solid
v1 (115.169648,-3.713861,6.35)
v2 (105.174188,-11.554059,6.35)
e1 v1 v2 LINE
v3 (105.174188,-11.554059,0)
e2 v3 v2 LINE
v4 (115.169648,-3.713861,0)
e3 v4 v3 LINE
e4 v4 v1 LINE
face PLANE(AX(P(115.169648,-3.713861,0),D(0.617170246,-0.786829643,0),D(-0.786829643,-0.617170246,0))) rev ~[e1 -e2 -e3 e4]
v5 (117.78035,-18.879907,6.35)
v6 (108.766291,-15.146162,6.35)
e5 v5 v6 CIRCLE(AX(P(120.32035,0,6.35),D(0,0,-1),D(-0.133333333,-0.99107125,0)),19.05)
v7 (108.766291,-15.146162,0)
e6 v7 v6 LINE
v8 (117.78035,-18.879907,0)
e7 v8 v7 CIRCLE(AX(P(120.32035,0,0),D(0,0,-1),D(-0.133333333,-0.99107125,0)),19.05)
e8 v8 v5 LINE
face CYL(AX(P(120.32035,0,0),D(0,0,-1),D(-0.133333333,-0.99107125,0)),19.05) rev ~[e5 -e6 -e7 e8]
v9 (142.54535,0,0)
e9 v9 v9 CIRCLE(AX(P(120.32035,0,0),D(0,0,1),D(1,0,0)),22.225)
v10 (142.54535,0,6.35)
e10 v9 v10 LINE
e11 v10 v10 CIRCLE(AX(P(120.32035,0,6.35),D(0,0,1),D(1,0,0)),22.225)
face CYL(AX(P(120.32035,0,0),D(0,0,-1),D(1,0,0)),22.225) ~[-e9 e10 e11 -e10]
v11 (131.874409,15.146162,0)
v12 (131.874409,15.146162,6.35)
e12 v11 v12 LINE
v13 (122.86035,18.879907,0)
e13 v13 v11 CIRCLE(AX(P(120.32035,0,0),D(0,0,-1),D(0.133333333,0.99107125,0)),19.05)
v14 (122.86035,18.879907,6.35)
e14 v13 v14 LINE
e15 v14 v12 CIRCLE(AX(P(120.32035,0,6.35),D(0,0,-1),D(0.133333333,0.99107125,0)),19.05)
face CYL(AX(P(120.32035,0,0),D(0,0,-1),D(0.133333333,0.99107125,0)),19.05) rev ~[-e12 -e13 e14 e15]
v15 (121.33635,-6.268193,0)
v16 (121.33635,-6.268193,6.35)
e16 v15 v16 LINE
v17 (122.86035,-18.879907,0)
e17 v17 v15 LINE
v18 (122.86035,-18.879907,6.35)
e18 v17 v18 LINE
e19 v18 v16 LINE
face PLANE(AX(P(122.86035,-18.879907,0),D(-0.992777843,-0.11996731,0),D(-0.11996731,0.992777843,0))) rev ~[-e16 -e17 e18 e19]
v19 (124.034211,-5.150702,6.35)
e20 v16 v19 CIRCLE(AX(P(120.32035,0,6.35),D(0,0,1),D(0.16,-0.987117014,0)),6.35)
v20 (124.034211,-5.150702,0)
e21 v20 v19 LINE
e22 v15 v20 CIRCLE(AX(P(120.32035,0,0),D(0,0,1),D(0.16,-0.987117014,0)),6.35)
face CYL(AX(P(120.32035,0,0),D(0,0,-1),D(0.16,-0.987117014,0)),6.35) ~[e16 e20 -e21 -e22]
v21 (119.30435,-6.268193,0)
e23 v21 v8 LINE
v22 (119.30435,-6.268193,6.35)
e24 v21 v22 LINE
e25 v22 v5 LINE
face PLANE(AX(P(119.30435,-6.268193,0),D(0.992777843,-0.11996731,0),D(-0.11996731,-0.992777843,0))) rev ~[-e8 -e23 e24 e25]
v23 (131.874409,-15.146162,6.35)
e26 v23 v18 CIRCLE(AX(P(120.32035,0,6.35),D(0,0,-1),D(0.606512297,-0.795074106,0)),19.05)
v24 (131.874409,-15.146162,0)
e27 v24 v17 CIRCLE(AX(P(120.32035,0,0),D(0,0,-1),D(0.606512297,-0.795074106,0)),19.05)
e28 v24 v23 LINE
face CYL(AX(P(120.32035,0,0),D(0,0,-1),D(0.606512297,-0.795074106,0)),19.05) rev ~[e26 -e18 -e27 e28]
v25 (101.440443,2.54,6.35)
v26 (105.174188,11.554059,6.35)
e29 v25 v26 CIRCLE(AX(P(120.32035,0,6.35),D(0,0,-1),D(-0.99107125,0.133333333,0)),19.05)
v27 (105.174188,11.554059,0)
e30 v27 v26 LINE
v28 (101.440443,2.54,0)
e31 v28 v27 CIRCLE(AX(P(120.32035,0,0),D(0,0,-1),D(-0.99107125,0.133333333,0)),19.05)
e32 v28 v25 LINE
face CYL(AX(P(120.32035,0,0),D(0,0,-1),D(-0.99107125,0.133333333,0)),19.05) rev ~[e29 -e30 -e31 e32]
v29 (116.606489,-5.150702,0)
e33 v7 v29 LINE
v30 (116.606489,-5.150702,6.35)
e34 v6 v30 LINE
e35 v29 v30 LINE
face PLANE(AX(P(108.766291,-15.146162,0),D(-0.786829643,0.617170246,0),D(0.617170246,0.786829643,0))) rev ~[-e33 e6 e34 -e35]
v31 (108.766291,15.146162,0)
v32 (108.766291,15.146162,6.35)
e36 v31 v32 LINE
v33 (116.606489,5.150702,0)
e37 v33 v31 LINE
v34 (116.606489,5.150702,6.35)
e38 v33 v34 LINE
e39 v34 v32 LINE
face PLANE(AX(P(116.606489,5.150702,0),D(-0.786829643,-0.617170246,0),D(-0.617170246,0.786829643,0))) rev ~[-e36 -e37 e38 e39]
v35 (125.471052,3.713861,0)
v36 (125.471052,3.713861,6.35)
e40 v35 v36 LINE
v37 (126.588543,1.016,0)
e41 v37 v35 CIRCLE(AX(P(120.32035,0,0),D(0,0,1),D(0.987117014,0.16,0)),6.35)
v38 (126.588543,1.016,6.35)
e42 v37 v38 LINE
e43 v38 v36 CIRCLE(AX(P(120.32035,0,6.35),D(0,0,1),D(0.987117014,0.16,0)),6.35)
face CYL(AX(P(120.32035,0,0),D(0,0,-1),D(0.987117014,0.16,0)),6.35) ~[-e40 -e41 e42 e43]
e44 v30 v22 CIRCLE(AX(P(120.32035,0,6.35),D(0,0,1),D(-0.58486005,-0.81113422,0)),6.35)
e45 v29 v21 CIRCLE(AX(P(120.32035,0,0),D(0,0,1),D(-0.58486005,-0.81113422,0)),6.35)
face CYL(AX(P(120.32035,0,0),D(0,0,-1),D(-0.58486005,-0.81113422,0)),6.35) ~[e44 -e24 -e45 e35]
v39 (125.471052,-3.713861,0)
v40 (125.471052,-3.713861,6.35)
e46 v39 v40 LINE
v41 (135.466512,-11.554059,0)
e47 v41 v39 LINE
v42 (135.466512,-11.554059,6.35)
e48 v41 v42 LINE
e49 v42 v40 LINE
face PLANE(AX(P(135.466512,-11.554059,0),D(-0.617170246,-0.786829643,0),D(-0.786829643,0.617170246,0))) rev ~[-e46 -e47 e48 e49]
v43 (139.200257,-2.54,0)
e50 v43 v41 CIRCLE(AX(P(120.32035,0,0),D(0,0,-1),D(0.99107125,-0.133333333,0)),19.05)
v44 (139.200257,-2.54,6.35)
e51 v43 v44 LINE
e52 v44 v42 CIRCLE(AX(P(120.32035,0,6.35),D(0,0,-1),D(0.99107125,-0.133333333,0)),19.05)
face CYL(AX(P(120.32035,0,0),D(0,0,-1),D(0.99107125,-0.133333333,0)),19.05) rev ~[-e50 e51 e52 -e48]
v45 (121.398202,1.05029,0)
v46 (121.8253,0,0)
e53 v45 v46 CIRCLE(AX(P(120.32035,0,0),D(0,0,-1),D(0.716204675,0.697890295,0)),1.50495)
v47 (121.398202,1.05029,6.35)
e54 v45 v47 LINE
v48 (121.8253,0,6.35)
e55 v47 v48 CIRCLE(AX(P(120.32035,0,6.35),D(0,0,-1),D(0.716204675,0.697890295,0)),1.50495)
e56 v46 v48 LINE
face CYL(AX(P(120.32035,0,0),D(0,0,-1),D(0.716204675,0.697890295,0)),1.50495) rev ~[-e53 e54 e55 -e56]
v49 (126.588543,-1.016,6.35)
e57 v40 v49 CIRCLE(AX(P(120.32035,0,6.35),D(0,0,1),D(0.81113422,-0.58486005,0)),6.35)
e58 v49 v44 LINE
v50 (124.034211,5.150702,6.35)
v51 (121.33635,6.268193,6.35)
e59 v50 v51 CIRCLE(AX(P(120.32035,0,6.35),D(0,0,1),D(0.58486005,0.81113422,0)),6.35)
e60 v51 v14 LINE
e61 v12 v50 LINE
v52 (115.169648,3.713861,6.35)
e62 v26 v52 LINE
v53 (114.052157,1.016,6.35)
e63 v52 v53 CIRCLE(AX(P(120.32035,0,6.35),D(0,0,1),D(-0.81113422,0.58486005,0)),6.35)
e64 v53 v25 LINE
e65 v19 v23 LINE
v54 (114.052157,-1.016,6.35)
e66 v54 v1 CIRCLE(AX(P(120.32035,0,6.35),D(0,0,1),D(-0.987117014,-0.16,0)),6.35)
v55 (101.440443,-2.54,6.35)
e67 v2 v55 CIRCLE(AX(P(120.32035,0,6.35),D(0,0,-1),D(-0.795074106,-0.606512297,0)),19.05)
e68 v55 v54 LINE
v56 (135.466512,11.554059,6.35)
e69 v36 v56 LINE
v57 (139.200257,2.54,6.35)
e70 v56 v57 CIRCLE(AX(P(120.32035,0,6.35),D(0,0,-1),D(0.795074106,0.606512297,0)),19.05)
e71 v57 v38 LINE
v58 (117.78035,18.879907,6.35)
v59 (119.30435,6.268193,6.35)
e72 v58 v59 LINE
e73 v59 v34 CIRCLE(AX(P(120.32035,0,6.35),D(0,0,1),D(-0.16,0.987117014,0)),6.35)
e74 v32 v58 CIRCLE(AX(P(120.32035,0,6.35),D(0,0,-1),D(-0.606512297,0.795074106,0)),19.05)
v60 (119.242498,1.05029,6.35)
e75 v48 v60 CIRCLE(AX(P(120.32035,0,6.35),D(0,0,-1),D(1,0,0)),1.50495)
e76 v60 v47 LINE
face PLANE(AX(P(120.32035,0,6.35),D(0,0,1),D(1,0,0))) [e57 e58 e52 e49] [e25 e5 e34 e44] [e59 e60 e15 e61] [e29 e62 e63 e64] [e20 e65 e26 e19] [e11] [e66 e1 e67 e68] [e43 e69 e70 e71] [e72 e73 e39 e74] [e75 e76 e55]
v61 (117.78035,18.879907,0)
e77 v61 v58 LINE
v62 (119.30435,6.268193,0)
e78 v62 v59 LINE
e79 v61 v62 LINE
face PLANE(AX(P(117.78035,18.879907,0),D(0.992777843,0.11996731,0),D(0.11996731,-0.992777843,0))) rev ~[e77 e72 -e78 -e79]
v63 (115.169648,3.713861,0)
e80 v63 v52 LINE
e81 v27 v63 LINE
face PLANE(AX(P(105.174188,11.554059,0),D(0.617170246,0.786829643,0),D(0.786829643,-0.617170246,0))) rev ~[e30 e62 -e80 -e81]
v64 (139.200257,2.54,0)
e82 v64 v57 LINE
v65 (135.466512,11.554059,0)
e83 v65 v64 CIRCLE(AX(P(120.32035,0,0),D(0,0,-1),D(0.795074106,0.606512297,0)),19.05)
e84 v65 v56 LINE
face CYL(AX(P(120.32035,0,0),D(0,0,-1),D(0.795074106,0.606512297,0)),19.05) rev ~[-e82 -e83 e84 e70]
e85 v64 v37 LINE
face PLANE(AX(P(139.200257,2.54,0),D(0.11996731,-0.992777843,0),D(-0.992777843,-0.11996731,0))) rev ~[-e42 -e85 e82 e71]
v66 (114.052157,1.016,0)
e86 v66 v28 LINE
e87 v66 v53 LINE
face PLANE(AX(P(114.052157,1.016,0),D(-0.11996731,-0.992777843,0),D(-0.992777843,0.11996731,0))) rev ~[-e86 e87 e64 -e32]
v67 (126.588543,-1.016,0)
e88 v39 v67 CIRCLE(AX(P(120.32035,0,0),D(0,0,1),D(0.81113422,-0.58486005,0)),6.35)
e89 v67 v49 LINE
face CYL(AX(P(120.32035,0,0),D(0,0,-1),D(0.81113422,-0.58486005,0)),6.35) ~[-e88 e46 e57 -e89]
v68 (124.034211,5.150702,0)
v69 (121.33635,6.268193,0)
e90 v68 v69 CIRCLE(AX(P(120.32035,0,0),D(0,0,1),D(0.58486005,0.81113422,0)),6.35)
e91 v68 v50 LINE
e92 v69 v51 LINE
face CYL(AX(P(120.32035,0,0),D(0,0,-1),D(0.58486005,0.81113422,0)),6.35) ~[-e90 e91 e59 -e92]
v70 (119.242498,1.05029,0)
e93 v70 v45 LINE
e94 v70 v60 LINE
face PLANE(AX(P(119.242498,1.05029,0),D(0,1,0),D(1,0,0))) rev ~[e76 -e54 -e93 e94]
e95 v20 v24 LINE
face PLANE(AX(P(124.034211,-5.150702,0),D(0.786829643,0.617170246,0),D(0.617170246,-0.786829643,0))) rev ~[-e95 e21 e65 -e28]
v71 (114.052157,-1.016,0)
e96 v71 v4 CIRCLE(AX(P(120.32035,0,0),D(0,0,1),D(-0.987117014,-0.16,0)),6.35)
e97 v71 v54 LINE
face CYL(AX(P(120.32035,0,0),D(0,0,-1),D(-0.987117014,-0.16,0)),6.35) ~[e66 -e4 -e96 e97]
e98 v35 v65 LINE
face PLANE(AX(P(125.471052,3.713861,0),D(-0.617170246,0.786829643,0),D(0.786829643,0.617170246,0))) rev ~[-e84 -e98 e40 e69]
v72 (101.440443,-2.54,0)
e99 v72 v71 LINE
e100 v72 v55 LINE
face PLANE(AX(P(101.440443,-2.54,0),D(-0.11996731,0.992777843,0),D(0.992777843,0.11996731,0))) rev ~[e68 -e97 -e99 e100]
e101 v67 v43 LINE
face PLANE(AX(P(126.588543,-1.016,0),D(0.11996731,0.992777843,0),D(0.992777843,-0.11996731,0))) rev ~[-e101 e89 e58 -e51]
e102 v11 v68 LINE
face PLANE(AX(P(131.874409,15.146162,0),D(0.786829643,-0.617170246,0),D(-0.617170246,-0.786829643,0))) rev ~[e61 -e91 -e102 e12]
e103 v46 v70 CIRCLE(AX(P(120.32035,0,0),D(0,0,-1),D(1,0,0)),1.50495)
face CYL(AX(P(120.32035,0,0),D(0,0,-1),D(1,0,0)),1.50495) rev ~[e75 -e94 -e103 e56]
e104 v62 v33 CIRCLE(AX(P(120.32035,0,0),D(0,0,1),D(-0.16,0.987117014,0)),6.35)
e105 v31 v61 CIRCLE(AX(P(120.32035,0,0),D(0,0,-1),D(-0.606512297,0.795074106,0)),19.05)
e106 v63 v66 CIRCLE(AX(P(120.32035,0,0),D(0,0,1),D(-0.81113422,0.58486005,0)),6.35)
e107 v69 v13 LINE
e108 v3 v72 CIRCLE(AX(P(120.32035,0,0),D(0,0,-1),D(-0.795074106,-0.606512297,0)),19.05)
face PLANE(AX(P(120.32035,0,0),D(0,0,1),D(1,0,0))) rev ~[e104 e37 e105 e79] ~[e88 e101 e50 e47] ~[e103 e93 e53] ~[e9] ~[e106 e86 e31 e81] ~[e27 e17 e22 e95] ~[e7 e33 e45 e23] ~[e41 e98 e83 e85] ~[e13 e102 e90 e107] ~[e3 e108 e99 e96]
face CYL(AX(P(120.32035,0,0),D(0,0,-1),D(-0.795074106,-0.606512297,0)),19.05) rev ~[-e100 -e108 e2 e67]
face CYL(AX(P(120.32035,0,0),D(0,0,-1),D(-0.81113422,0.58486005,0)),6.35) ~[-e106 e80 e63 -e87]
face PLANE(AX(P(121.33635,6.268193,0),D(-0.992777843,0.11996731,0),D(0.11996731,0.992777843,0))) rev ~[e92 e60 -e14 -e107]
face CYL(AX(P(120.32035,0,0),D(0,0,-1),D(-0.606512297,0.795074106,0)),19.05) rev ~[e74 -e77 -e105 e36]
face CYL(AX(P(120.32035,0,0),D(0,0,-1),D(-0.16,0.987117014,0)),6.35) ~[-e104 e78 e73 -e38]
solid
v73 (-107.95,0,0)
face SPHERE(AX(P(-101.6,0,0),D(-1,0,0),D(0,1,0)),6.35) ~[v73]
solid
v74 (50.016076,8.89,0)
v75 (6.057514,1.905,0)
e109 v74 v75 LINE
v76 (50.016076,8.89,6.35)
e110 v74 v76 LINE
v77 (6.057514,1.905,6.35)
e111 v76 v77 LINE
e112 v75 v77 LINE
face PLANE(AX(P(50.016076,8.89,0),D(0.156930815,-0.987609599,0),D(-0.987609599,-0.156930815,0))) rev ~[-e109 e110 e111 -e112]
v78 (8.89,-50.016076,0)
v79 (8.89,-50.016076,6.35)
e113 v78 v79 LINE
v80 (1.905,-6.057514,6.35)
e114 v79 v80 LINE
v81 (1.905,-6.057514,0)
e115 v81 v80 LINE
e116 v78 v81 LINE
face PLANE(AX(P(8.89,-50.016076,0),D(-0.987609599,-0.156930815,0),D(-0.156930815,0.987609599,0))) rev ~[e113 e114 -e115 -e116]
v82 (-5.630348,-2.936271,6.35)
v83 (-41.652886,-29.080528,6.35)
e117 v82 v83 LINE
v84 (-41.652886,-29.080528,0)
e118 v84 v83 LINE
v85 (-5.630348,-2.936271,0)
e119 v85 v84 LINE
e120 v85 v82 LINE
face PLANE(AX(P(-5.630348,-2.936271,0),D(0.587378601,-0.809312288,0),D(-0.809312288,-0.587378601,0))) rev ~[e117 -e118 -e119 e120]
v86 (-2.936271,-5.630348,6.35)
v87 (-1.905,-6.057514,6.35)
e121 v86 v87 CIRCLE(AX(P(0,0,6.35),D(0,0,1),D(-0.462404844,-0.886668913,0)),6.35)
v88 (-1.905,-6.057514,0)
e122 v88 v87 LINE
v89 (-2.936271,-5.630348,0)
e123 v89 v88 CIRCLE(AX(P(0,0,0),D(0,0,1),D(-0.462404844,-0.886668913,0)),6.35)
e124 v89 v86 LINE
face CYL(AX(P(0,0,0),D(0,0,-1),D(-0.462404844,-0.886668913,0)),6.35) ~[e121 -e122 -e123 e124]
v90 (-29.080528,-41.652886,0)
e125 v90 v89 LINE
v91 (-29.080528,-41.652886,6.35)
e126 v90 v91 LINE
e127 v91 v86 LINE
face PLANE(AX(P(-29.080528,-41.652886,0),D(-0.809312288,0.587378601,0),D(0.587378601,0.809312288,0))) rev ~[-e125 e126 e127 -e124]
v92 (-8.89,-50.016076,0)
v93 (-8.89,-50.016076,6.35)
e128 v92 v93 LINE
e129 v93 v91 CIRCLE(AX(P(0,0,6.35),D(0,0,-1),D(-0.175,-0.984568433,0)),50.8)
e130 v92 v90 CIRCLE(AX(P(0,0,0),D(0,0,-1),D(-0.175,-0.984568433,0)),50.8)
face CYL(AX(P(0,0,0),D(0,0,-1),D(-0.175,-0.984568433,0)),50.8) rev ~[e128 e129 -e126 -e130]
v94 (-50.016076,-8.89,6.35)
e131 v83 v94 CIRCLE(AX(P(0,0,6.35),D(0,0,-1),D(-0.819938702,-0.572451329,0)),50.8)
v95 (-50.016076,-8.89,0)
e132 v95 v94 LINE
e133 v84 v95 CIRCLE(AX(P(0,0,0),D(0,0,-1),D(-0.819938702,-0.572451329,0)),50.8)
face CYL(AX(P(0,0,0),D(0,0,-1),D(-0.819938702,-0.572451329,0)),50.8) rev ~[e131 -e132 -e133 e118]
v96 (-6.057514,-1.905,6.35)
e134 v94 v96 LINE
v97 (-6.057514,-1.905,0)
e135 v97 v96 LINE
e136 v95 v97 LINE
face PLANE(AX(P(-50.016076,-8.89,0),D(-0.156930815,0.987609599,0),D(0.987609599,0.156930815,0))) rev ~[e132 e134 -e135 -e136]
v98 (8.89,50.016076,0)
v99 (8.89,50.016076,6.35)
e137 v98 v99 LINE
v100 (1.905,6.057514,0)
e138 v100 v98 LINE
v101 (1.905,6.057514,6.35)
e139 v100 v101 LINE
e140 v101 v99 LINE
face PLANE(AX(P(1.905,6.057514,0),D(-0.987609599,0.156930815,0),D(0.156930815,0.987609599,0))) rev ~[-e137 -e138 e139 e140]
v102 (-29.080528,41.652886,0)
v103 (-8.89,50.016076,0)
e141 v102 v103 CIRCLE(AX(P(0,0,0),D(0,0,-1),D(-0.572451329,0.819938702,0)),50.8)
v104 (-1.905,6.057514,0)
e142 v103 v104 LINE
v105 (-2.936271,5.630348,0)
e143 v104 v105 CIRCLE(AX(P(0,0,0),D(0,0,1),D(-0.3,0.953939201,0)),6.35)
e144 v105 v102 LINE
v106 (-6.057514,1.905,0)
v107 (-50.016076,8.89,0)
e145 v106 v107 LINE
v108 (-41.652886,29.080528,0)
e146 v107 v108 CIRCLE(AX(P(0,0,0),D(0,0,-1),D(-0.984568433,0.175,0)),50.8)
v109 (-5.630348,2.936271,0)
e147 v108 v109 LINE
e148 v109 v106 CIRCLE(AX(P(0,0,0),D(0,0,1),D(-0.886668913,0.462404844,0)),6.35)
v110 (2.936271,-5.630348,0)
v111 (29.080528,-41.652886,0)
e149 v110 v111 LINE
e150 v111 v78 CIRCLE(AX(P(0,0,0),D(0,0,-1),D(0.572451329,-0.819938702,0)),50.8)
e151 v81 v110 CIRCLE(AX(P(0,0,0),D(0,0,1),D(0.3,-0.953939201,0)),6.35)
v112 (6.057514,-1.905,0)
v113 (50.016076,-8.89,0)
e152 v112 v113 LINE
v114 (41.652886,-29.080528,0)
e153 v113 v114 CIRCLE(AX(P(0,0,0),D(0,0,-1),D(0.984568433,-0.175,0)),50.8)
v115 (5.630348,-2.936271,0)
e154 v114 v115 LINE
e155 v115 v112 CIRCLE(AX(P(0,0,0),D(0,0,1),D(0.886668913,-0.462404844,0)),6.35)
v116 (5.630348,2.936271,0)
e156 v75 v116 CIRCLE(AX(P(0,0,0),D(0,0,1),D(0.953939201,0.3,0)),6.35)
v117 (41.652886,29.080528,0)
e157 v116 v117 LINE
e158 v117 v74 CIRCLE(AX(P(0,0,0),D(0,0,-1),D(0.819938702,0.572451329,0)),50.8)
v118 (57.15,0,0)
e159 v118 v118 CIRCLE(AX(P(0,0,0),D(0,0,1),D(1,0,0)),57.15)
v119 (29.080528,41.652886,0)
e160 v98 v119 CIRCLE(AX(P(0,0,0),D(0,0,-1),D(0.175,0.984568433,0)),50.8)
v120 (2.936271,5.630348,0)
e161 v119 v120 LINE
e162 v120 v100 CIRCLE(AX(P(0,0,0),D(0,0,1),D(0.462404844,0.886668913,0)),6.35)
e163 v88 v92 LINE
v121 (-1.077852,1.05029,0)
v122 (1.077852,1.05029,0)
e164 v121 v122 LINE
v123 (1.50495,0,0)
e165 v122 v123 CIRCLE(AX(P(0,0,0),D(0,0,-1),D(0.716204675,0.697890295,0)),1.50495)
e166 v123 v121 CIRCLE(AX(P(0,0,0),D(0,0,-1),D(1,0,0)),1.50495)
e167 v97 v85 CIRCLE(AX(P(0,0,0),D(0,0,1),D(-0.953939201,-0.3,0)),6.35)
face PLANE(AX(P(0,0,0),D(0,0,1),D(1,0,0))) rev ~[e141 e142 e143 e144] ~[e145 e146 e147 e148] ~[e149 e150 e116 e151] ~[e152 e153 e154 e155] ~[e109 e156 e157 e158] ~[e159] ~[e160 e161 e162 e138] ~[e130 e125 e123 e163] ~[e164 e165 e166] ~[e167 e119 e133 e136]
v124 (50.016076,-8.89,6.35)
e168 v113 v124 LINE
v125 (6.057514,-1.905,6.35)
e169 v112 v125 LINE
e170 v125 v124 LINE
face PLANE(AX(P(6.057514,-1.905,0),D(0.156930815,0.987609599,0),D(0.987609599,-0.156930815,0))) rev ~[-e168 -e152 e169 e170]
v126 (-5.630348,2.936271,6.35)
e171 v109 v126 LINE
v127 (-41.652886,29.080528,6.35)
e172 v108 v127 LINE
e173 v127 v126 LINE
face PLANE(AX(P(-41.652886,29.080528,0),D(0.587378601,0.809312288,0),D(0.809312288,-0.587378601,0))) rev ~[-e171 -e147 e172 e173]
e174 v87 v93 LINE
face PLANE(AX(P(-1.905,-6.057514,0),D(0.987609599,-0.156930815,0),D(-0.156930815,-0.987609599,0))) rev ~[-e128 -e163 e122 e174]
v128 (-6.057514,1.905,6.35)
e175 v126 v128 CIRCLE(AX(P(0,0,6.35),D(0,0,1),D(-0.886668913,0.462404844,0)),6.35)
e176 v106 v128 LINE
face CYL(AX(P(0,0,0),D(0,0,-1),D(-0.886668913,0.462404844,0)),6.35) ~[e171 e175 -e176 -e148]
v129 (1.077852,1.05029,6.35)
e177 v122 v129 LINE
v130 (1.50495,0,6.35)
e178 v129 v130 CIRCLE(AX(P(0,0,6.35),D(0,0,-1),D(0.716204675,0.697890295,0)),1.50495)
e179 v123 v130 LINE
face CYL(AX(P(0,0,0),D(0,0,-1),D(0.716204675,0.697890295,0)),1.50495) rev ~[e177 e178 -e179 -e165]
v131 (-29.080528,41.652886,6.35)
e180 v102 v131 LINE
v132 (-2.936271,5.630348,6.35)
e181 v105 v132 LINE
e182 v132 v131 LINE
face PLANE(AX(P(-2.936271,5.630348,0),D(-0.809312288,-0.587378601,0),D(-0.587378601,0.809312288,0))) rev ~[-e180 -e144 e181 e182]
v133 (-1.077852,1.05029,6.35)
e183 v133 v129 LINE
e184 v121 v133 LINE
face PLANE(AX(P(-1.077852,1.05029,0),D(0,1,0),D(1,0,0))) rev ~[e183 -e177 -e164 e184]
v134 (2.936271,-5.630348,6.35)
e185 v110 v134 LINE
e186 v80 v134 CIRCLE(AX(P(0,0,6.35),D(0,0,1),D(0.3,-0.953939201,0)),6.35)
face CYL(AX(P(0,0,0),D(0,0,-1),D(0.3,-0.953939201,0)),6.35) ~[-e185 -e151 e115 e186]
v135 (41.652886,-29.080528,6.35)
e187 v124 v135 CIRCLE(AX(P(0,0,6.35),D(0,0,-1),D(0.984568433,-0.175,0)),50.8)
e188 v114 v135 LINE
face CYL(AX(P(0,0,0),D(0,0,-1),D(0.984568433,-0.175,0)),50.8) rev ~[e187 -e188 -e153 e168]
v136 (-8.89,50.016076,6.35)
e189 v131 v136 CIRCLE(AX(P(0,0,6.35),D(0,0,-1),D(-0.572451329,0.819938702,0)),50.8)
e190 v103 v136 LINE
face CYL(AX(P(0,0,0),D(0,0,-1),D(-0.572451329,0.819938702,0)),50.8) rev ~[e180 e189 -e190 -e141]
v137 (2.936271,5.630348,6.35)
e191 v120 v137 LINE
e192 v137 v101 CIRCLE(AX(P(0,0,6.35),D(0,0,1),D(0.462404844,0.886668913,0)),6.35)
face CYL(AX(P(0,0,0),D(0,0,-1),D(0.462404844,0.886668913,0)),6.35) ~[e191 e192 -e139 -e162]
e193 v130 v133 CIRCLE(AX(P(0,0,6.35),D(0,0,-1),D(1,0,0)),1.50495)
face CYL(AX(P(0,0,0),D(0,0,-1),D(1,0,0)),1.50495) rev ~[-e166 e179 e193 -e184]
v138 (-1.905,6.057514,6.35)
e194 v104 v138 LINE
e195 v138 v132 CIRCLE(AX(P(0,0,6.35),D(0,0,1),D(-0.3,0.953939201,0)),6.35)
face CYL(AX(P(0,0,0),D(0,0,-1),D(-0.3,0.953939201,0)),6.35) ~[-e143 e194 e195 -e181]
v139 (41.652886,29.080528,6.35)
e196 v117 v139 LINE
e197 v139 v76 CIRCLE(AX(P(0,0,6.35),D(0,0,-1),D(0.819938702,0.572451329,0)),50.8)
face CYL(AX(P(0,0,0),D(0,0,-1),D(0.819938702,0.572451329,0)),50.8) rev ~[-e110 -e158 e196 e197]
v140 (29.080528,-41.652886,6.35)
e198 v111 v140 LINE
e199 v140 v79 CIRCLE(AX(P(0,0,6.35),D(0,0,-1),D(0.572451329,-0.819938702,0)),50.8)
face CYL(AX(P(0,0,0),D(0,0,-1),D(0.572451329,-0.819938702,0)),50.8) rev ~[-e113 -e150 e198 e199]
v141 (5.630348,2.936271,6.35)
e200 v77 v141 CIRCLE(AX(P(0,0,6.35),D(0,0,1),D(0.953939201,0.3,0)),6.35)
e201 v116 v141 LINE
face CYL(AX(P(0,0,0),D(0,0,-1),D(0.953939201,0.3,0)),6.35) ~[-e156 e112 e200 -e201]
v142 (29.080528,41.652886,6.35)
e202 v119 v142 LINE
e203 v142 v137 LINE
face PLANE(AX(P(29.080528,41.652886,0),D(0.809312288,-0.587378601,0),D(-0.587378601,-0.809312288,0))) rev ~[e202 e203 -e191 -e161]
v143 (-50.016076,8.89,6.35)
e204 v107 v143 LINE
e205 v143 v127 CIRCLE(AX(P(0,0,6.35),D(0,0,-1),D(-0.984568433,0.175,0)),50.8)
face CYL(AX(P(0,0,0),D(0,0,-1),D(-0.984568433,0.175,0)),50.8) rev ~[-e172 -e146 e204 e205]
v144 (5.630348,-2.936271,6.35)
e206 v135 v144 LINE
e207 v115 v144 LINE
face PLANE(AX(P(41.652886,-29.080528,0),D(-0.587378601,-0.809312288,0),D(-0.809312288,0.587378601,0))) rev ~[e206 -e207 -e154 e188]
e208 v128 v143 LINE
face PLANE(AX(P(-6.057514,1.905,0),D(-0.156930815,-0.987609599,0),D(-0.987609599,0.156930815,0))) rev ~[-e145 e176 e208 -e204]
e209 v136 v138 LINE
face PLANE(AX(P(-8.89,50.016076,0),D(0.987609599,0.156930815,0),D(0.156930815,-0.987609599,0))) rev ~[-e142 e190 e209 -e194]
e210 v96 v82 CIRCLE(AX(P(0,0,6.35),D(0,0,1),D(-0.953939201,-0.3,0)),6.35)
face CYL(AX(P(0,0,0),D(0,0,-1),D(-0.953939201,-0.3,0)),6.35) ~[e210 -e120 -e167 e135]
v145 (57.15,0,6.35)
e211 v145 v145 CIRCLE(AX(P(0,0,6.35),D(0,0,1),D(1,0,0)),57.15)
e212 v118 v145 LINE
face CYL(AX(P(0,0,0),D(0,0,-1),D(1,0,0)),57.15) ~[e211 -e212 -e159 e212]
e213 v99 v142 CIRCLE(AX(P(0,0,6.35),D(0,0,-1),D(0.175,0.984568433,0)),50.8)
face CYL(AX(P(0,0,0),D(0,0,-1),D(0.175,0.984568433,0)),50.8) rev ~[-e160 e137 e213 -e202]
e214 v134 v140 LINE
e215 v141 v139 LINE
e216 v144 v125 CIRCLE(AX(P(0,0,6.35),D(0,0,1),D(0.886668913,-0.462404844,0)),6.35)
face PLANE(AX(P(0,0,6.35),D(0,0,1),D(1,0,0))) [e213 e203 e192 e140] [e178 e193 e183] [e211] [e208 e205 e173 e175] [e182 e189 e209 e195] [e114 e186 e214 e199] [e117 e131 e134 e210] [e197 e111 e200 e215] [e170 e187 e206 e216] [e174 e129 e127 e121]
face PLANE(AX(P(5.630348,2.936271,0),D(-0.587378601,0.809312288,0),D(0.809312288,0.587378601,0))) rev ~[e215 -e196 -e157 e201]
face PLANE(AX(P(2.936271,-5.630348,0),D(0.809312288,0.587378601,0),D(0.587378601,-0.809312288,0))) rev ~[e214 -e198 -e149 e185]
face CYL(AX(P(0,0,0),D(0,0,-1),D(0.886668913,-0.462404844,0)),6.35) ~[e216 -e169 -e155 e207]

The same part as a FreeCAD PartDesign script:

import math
import FreeCAD as App
import Part
import Sketcher

V = App.Vector
Q = App.Units.Quantity

doc = App.newDocument("Part")
params = doc.addObject("Spreadsheet::Sheet", "Params")
for row, (alias, value) in enumerate([
    ("sketch1_radius", "2 in"),
    ("sketch1_diameter", "4.5 in"),
    ("sketch1_radius2", "0.25 in"),
    ("pad1_length", "0.25 in"),
    ("sketch2_diameter", "1.75 in"),
    ("sketch2_radius", "0.75 in"),
    ("sketch2_radius2", "0.25 in"),
    ("pad2_length", "0.25 in"),
    ("sketch3_radius", "0.25 in"),
    ("revolution_angle", "360 deg"),
], start=1):
    params.set(f"A{row}", alias)
    params.set(f"B{row}", "=" + value)
    params.setAlias(f"B{row}", alias)

body = doc.addObject("PartDesign::Body", "Body")

# Sketch on XY plane
sketch1 = body.newObject("Sketcher::SketchObject", "Sketch")
sketch1.AttachmentSupport = (doc.getObject("XY_Plane"), [""])
sketch1.MapMode = "FlatFace"
sketch1.addGeometry(Part.Circle(V(0, 0, 0), V(0, 0, 1), 57.1), False)
sketch1.addGeometry(Part.ArcOfCircle(Part.Circle(V(0, 0, 0), V(0, 0, 1), 1.5), math.radians(0), math.radians(44)), False)
sketch1.addGeometry(Part.ArcOfCircle(Part.Circle(V(0, 0, 0), V(0, 0, 1), 1.5), math.radians(136), math.radians(360)), False)
sketch1.addGeometry(Part.LineSegment(V(-1.1, 1.1, 0), V(1.1, 1.1, 0)), False)
sketch1.addGeometry(Part.ArcOfCircle(Part.Circle(V(0, 0, 0), V(0, 0, 1), 50.8), math.radians(55), math.radians(80)), False)
sketch1.addGeometry(Part.LineSegment(V(29.1, 41.7, 0), V(2.9, 5.6, 0)), False)
sketch1.addGeometry(Part.ArcOfCircle(Part.Circle(V(0, 0, 0), V(0, 0, 1), 6.4), math.radians(62.46), math.radians(72.54)), False)
sketch1.addGeometry(Part.LineSegment(V(1.9, 6.1, 0), V(8.9, 50, 0)), False)
sketch1.addGeometry(Part.ArcOfCircle(Part.Circle(V(0, 0, 0), V(0, 0, 1), 50.8), math.radians(10), math.radians(35)), False)
sketch1.addGeometry(Part.LineSegment(V(50, 8.9, 0), V(6.1, 1.9, 0)), False)
sketch1.addGeometry(Part.ArcOfCircle(Part.Circle(V(0, 0, 0), V(0, 0, 1), 6.4), math.radians(17.46), math.radians(27.54)), False)
sketch1.addGeometry(Part.LineSegment(V(5.6, 2.9, 0), V(41.7, 29.1, 0)), False)
sketch1.addGeometry(Part.ArcOfCircle(Part.Circle(V(0, 0, 0), V(0, 0, 1), 50.8), math.radians(-35), math.radians(-10)), False)
sketch1.addGeometry(Part.LineSegment(V(41.7, -29.1, 0), V(5.6, -2.9, 0)), False)
sketch1.addGeometry(Part.ArcOfCircle(Part.Circle(V(0, 0, 0), V(0, 0, 1), 6.4), math.radians(-27.54), math.radians(-17.46)), False)
sketch1.addGeometry(Part.LineSegment(V(6.1, -1.9, 0), V(50, -8.9, 0)), False)
sketch1.addGeometry(Part.ArcOfCircle(Part.Circle(V(0, 0, 0), V(0, 0, 1), 50.8), math.radians(-80), math.radians(-55)), False)
sketch1.addGeometry(Part.LineSegment(V(8.9, -50, 0), V(1.9, -6.1, 0)), False)
sketch1.addGeometry(Part.ArcOfCircle(Part.Circle(V(0, 0, 0), V(0, 0, 1), 6.4), math.radians(-72.54), math.radians(-62.46)), False)
sketch1.addGeometry(Part.LineSegment(V(2.9, -5.6, 0), V(29.1, -41.7, 0)), False)
sketch1.addGeometry(Part.ArcOfCircle(Part.Circle(V(0, 0, 0), V(0, 0, 1), 50.8), math.radians(-125), math.radians(-100)), False)
sketch1.addGeometry(Part.LineSegment(V(-29.1, -41.7, 0), V(-2.9, -5.6, 0)), False)
sketch1.addGeometry(Part.ArcOfCircle(Part.Circle(V(0, 0, 0), V(0, 0, 1), 6.4), math.radians(-117.54), math.radians(-107.46)), False)
sketch1.addGeometry(Part.LineSegment(V(-1.9, -6.1, 0), V(-8.9, -50, 0)), False)
sketch1.addGeometry(Part.ArcOfCircle(Part.Circle(V(0, 0, 0), V(0, 0, 1), 50.8), math.radians(-170), math.radians(-145)), False)
sketch1.addGeometry(Part.LineSegment(V(-50, -8.9, 0), V(-6.1, -1.9, 0)), False)
sketch1.addGeometry(Part.ArcOfCircle(Part.Circle(V(0, 0, 0), V(0, 0, 1), 6.4), math.radians(-162.54), math.radians(-152.46)), False)
sketch1.addGeometry(Part.LineSegment(V(-5.6, -2.9, 0), V(-41.7, -29.1, 0)), False)
sketch1.addGeometry(Part.ArcOfCircle(Part.Circle(V(0, 0, 0), V(0, 0, 1), 50.8), math.radians(145), math.radians(170)), False)
sketch1.addGeometry(Part.LineSegment(V(-41.7, 29.1, 0), V(-5.6, 2.9, 0)), False)
sketch1.addGeometry(Part.ArcOfCircle(Part.Circle(V(0, 0, 0), V(0, 0, 1), 6.4), math.radians(152.46), math.radians(162.54)), False)
sketch1.addGeometry(Part.LineSegment(V(-6.1, 1.9, 0), V(-50, 8.9, 0)), False)
sketch1.addGeometry(Part.ArcOfCircle(Part.Circle(V(0, 0, 0), V(0, 0, 1), 50.8), math.radians(100), math.radians(125)), False)
sketch1.addGeometry(Part.LineSegment(V(-8.9, 50, 0), V(-1.9, 6.1, 0)), False)
sketch1.addGeometry(Part.ArcOfCircle(Part.Circle(V(0, 0, 0), V(0, 0, 1), 6.4), math.radians(107.46), math.radians(117.54)), False)
sketch1.addGeometry(Part.LineSegment(V(-2.9, 5.6, 0), V(-29.1, 41.7, 0)), False)
sketch1.addConstraint(Sketcher.Constraint("Tangent", 1, 1, 2, 2))
sketch1.addConstraint(Sketcher.Constraint("Coincident", 2, 1, 3, 1))
sketch1.addConstraint(Sketcher.Constraint("Coincident", 3, 2, 1, 2))
sketch1.addConstraint(Sketcher.Constraint("Coincident", 4, 1, 5, 1))
sketch1.addConstraint(Sketcher.Constraint("Coincident", 5, 2, 6, 1))
sketch1.addConstraint(Sketcher.Constraint("Coincident", 6, 2, 7, 1))
sketch1.addConstraint(Sketcher.Constraint("Coincident", 7, 2, 4, 2))
sketch1.addConstraint(Sketcher.Constraint("Coincident", 8, 1, 9, 1))
sketch1.addConstraint(Sketcher.Constraint("Coincident", 9, 2, 10, 1))
sketch1.addConstraint(Sketcher.Constraint("Coincident", 10, 2, 11, 1))
sketch1.addConstraint(Sketcher.Constraint("Coincident", 11, 2, 8, 2))
sketch1.addConstraint(Sketcher.Constraint("Coincident", 12, 1, 13, 1))
sketch1.addConstraint(Sketcher.Constraint("Coincident", 13, 2, 14, 1))
sketch1.addConstraint(Sketcher.Constraint("Coincident", 14, 2, 15, 1))
sketch1.addConstraint(Sketcher.Constraint("Coincident", 15, 2, 12, 2))
sketch1.addConstraint(Sketcher.Constraint("Coincident", 16, 1, 17, 1))
sketch1.addConstraint(Sketcher.Constraint("Coincident", 17, 2, 18, 1))
sketch1.addConstraint(Sketcher.Constraint("Coincident", 18, 2, 19, 1))
sketch1.addConstraint(Sketcher.Constraint("Coincident", 19, 2, 16, 2))
sketch1.addConstraint(Sketcher.Constraint("Coincident", 20, 1, 21, 1))
sketch1.addConstraint(Sketcher.Constraint("Coincident", 21, 2, 22, 1))
sketch1.addConstraint(Sketcher.Constraint("Coincident", 22, 2, 23, 1))
sketch1.addConstraint(Sketcher.Constraint("Coincident", 23, 2, 20, 2))
sketch1.addConstraint(Sketcher.Constraint("Coincident", 24, 1, 25, 1))
sketch1.addConstraint(Sketcher.Constraint("Coincident", 25, 2, 26, 1))
sketch1.addConstraint(Sketcher.Constraint("Coincident", 26, 2, 27, 1))
sketch1.addConstraint(Sketcher.Constraint("Coincident", 27, 2, 24, 2))
sketch1.addConstraint(Sketcher.Constraint("Coincident", 28, 1, 29, 1))
sketch1.addConstraint(Sketcher.Constraint("Coincident", 29, 2, 30, 1))
sketch1.addConstraint(Sketcher.Constraint("Coincident", 30, 2, 31, 1))
sketch1.addConstraint(Sketcher.Constraint("Coincident", 31, 2, 28, 2))
sketch1.addConstraint(Sketcher.Constraint("Coincident", 32, 1, 33, 1))
sketch1.addConstraint(Sketcher.Constraint("Coincident", 33, 2, 34, 1))
sketch1.addConstraint(Sketcher.Constraint("Coincident", 34, 2, 35, 1))
sketch1.addConstraint(Sketcher.Constraint("Coincident", 35, 2, 32, 2))
sketch1.addConstraint(Sketcher.Constraint("Horizontal", 3))
sketch1.addConstraint(Sketcher.Constraint("Coincident", 0, 3, -1, 1))
sketch1.addConstraint(Sketcher.Constraint("Coincident", 1, 3, -1, 1))
sketch1.addConstraint(Sketcher.Constraint("Coincident", 4, 3, -1, 1))
sketch1.addConstraint(Sketcher.Constraint("Coincident", 6, 3, -1, 1))
sketch1.addConstraint(Sketcher.Constraint("Coincident", 8, 3, -1, 1))
sketch1.addConstraint(Sketcher.Constraint("Coincident", 10, 3, -1, 1))
sketch1.addConstraint(Sketcher.Constraint("Coincident", 12, 3, -1, 1))
sketch1.addConstraint(Sketcher.Constraint("Coincident", 14, 3, -1, 1))
sketch1.addConstraint(Sketcher.Constraint("Coincident", 16, 3, -1, 1))
sketch1.addConstraint(Sketcher.Constraint("Coincident", 18, 3, -1, 1))
sketch1.addConstraint(Sketcher.Constraint("Coincident", 20, 3, -1, 1))
sketch1.addConstraint(Sketcher.Constraint("Coincident", 22, 3, -1, 1))
sketch1.addConstraint(Sketcher.Constraint("Coincident", 24, 3, -1, 1))
sketch1.addConstraint(Sketcher.Constraint("Coincident", 26, 3, -1, 1))
sketch1.addConstraint(Sketcher.Constraint("Coincident", 28, 3, -1, 1))
sketch1.addConstraint(Sketcher.Constraint("Coincident", 30, 3, -1, 1))
sketch1.addConstraint(Sketcher.Constraint("Coincident", 32, 3, -1, 1))
sketch1.addConstraint(Sketcher.Constraint("Coincident", 34, 3, -1, 1))
sketch1.addConstraint(Sketcher.Constraint("Equal", 1, 2))
sketch1.addConstraint(Sketcher.Constraint("Equal", 4, 8))
sketch1.addConstraint(Sketcher.Constraint("Equal", 6, 10))
sketch1.addConstraint(Sketcher.Constraint("Equal", 8, 12))
sketch1.addConstraint(Sketcher.Constraint("Equal", 10, 14))
sketch1.addConstraint(Sketcher.Constraint("Equal", 12, 16))
sketch1.addConstraint(Sketcher.Constraint("Equal", 14, 18))
sketch1.addConstraint(Sketcher.Constraint("Equal", 16, 20))
sketch1.addConstraint(Sketcher.Constraint("Equal", 18, 22))
sketch1.addConstraint(Sketcher.Constraint("Equal", 20, 24))
sketch1.addConstraint(Sketcher.Constraint("Equal", 22, 26))
sketch1.addConstraint(Sketcher.Constraint("Equal", 24, 28))
sketch1.addConstraint(Sketcher.Constraint("Equal", 26, 30))
sketch1.addConstraint(Sketcher.Constraint("Equal", 28, 32))
sketch1.addConstraint(Sketcher.Constraint("Equal", 30, 34))
sketch1.addConstraint(Sketcher.Constraint("PointOnObject", 1, 1, -1))
sketch1.addConstraint(Sketcher.Constraint("Perpendicular", 5, 13))
sketch1.addConstraint(Sketcher.Constraint("Perpendicular", 7, 15))
sketch1.addConstraint(Sketcher.Constraint("Perpendicular", 9, 17))
sketch1.addConstraint(Sketcher.Constraint("Perpendicular", 11, 19))
sketch1.addConstraint(Sketcher.Constraint("Perpendicular", 13, 21))
sketch1.addConstraint(Sketcher.Constraint("Perpendicular", 15, 23))
sketch1.addConstraint(Sketcher.Constraint("Perpendicular", 17, 25))
sketch1.addConstraint(Sketcher.Constraint("Perpendicular", 19, 27))
sketch1.addConstraint(Sketcher.Constraint("Perpendicular", 21, 29))
sketch1.addConstraint(Sketcher.Constraint("Perpendicular", 23, 31))
sketch1.addConstraint(Sketcher.Constraint("Perpendicular", 25, 33))
sketch1.addConstraint(Sketcher.Constraint("Perpendicular", 27, 35))
sketch1.addConstraint(Sketcher.Constraint("Horizontal", 19, 2, 20, 1))
sketch1.addConstraint(Sketcher.Constraint("Horizontal", 18, 2, 21, 2))
sketch1.addConstraint(Sketcher.Constraint("Horizontal", 17, 2, 22, 2))
sketch1.addConstraint(Sketcher.Constraint("Horizontal", 16, 1, 23, 2))
sketch1.addConstraint(Sketcher.Constraint("Horizontal", 15, 2, 24, 1))
sketch1.addConstraint(Sketcher.Constraint("Horizontal", 13, 2, 26, 2))
sketch1.addConstraint(Sketcher.Constraint("Horizontal", 11, 2, 28, 1))
sketch1.addConstraint(Sketcher.Constraint("Horizontal", 9, 2, 30, 2))
sketch1.addConstraint(Sketcher.Constraint("Horizontal", 7, 2, 32, 1))
sketch1.addConstraint(Sketcher.Constraint("Horizontal", 5, 2, 34, 2))
sketch1.addConstraint(Sketcher.Constraint("Vertical", 11, 2, 12, 1))
sketch1.addConstraint(Sketcher.Constraint("Vertical", 9, 2, 14, 2))
sketch1.addConstraint(Sketcher.Constraint("Vertical", 7, 2, 16, 1))
sketch1.addConstraint(Sketcher.Constraint("Vertical", 5, 2, 18, 2))
sketch1.addConstraint(Sketcher.Constraint("Equal", 5, 7))
sketch1.addConstraint(Sketcher.Constraint("Equal", 7, 9))
sketch1.addConstraint(Sketcher.Constraint("Equal", 9, 11))
sketch1.addConstraint(Sketcher.Constraint("Radius", 4, Q("2 in")))
sketch1.addConstraint(Sketcher.Constraint("Diameter", 0, Q("4.5 in")))
sketch1.addConstraint(Sketcher.Constraint("Radius", 6, Q("0.25 in")))
sketch1.addConstraint(Sketcher.Constraint("DistanceY", 15, 2, 8, 1, Q("0.7 in")))
sketch1.addConstraint(Sketcher.Constraint("DistanceY", 14, 2, 9, 2, Q("0.15 in")))
sketch1.addConstraint(Sketcher.Constraint("Radius", 1, Q("1.50495 mm")))
sketch1.addConstraint(Sketcher.Constraint("DistanceY", 12, 1, 10, 2, Q("32.016798 mm")))
sketch1.addConstraint(Sketcher.Constraint("DistanceX", 3, 1, 3, 2, Q("2.155704 mm")))
sketch1.setExpression("Constraints[99]", "Params.sketch1_radius")
sketch1.setExpression("Constraints[100]", "Params.sketch1_diameter")
sketch1.setExpression("Constraints[101]", "Params.sketch1_radius2")
pad1 = body.newObject("PartDesign::Pad", "Pad")
pad1.Profile = sketch1
pad1.setExpression("Length", "Params.pad1_length")
body2 = doc.addObject("PartDesign::Body", "Body001")

# Sketch on XY plane
sketch2 = body2.newObject("Sketcher::SketchObject", "Sketch001")
sketch2.AttachmentSupport = (doc.getObject("XY_Plane001"), [""])
sketch2.MapMode = "FlatFace"
sketch2.addGeometry(Part.Circle(V(120.32035, 0, 0), V(0, 0, 1), 22.225), False)
sketch2.addGeometry(Part.ArcOfCircle(Part.Circle(V(120.32035, 0, 0), V(0, 0, 1), 19.05), math.radians(7.662256), math.radians(37.337744)), False)
sketch2.addGeometry(Part.LineSegment(V(139.200257, 2.54, 0), V(126.588543, 1.016, 0)), False)
sketch2.addGeometry(Part.ArcOfCircle(Part.Circle(V(120.32035, 0, 0), V(0, 0, 1), 6.35), math.radians(9.206896), math.radians(35.793104)), False)
sketch2.addGeometry(Part.LineSegment(V(125.471052, 3.713861, 0), V(135.466512, 11.554059, 0)), False)
sketch2.addGeometry(Part.ArcOfCircle(Part.Circle(V(120.32035, 0, 0), V(0, 0, 1), 6.35), math.radians(54.206896), math.radians(80.793104)), False)
sketch2.addGeometry(Part.LineSegment(V(121.33635, 6.268193, 0), V(122.86035, 18.879907, 0)), False)
sketch2.addGeometry(Part.ArcOfCircle(Part.Circle(V(120.32035, 0, 0), V(0, 0, 1), 19.05), math.radians(52.662256), math.radians(82.337744)), False)
sketch2.addGeometry(Part.LineSegment(V(131.874409, 15.146162, 0), V(124.034211, 5.150702, 0)), False)
sketch2.addGeometry(Part.ArcOfCircle(Part.Circle(V(120.32035, 0, 0), V(0, 0, 1), 19.05), math.radians(-37.337744), math.radians(-7.662256)), False)
sketch2.addGeometry(Part.LineSegment(V(135.466512, -11.554059, 0), V(125.471052, -3.713861, 0)), False)
sketch2.addGeometry(Part.ArcOfCircle(Part.Circle(V(120.32035, 0, 0), V(0, 0, 1), 6.35), math.radians(-35.793104), math.radians(-9.206896)), False)
sketch2.addGeometry(Part.LineSegment(V(126.588543, -1.016, 0), V(139.200257, -2.54, 0)), False)
sketch2.addGeometry(Part.ArcOfCircle(Part.Circle(V(120.32035, 0, 0), V(0, 0, 1), 19.05), math.radians(-82.337744), math.radians(-52.662256)), False)
sketch2.addGeometry(Part.LineSegment(V(122.86035, -18.879907, 0), V(121.33635, -6.268193, 0)), False)
sketch2.addGeometry(Part.ArcOfCircle(Part.Circle(V(120.32035, 0, 0), V(0, 0, 1), 6.35), math.radians(-80.793104), math.radians(-54.206896)), False)
sketch2.addGeometry(Part.LineSegment(V(124.034211, -5.150702, 0), V(131.874409, -15.146162, 0)), False)
sketch2.addGeometry(Part.ArcOfCircle(Part.Circle(V(120.32035, 0, 0), V(0, 0, 1), 19.05), math.radians(-127.337744), math.radians(-97.662256)), False)
sketch2.addGeometry(Part.LineSegment(V(108.766291, -15.146162, 0), V(116.606489, -5.150702, 0)), False)
sketch2.addGeometry(Part.ArcOfCircle(Part.Circle(V(120.32035, 0, 0), V(0, 0, 1), 6.35), math.radians(-125.793104), math.radians(-99.206896)), False)
sketch2.addGeometry(Part.LineSegment(V(119.30435, -6.268193, 0), V(117.78035, -18.879907, 0)), False)
sketch2.addGeometry(Part.ArcOfCircle(Part.Circle(V(120.32035, 0, 0), V(0, 0, 1), 19.05), math.radians(-172.337744), math.radians(-142.662256)), False)
sketch2.addGeometry(Part.LineSegment(V(101.440443, -2.54, 0), V(114.052157, -1.016, 0)), False)
sketch2.addGeometry(Part.ArcOfCircle(Part.Circle(V(120.32035, 0, 0), V(0, 0, 1), 6.35), math.radians(-170.793104), math.radians(-144.206896)), False)
sketch2.addGeometry(Part.LineSegment(V(115.169648, -3.713861, 0), V(105.174188, -11.554059, 0)), False)
sketch2.addGeometry(Part.ArcOfCircle(Part.Circle(V(120.32035, 0, 0), V(0, 0, 1), 19.05), math.radians(142.662256), math.radians(172.337744)), False)
sketch2.addGeometry(Part.LineSegment(V(105.174188, 11.554059, 0), V(115.169648, 3.713861, 0)), False)
sketch2.addGeometry(Part.ArcOfCircle(Part.Circle(V(120.32035, 0, 0), V(0, 0, 1), 6.35), math.radians(144.206896), math.radians(170.793104)), False)
sketch2.addGeometry(Part.LineSegment(V(114.052157, 1.016, 0), V(101.440443, 2.54, 0)), False)
sketch2.addGeometry(Part.ArcOfCircle(Part.Circle(V(120.32035, 0, 0), V(0, 0, 1), 19.05), math.radians(97.662256), math.radians(127.337744)), False)
sketch2.addGeometry(Part.LineSegment(V(117.78035, 18.879907, 0), V(119.30435, 6.268193, 0)), False)
sketch2.addGeometry(Part.ArcOfCircle(Part.Circle(V(120.32035, 0, 0), V(0, 0, 1), 6.35), math.radians(99.206896), math.radians(125.793104)), False)
sketch2.addGeometry(Part.LineSegment(V(116.606489, 5.150702, 0), V(108.766291, 15.146162, 0)), False)
sketch2.addGeometry(Part.ArcOfCircle(Part.Circle(V(120.32035, 0, 0), V(0, 0, 1), 1.50495), math.radians(0), math.radians(44.257986)), False)
sketch2.addGeometry(Part.ArcOfCircle(Part.Circle(V(120.32035, 0, 0), V(0, 0, 1), 1.50495), math.radians(135.742014), math.radians(360)), False)
sketch2.addGeometry(Part.LineSegment(V(119.242498, 1.05029, 0), V(121.398202, 1.05029, 0)), False)
sketch2.addConstraint(Sketcher.Constraint("Coincident", 1, 1, 2, 1))
sketch2.addConstraint(Sketcher.Constraint("Coincident", 2, 2, 3, 1))
sketch2.addConstraint(Sketcher.Constraint("Coincident", 3, 2, 4, 1))
sketch2.addConstraint(Sketcher.Constraint("Coincident", 4, 2, 1, 2))
sketch2.addConstraint(Sketcher.Constraint("Coincident", 5, 2, 6, 1))
sketch2.addConstraint(Sketcher.Constraint("Coincident", 6, 2, 7, 2))
sketch2.addConstraint(Sketcher.Constraint("Coincident", 7, 1, 8, 1))
sketch2.addConstraint(Sketcher.Constraint("Coincident", 8, 2, 5, 1))
sketch2.addConstraint(Sketcher.Constraint("Coincident", 9, 1, 10, 1))
sketch2.addConstraint(Sketcher.Constraint("Coincident", 10, 2, 11, 1))
sketch2.addConstraint(Sketcher.Constraint("Coincident", 11, 2, 12, 1))
sketch2.addConstraint(Sketcher.Constraint("Coincident", 12, 2, 9, 2))
sketch2.addConstraint(Sketcher.Constraint("Coincident", 13, 1, 14, 1))
sketch2.addConstraint(Sketcher.Constraint("Coincident", 14, 2, 15, 1))
sketch2.addConstraint(Sketcher.Constraint("Coincident", 15, 2, 16, 1))
sketch2.addConstraint(Sketcher.Constraint("Coincident", 16, 2, 13, 2))
sketch2.addConstraint(Sketcher.Constraint("Coincident", 17, 1, 18, 1))
sketch2.addConstraint(Sketcher.Constraint("Coincident", 18, 2, 19, 1))
sketch2.addConstraint(Sketcher.Constraint("Coincident", 19, 2, 20, 1))
sketch2.addConstraint(Sketcher.Constraint("Coincident", 20, 2, 17, 2))
sketch2.addConstraint(Sketcher.Constraint("Coincident", 21, 1, 22, 1))
sketch2.addConstraint(Sketcher.Constraint("Coincident", 22, 2, 23, 1))
sketch2.addConstraint(Sketcher.Constraint("Coincident", 23, 2, 24, 1))
sketch2.addConstraint(Sketcher.Constraint("Coincident", 24, 2, 21, 2))
sketch2.addConstraint(Sketcher.Constraint("Coincident", 25, 1, 26, 1))
sketch2.addConstraint(Sketcher.Constraint("Coincident", 26, 2, 27, 1))
sketch2.addConstraint(Sketcher.Constraint("Coincident", 27, 2, 28, 1))
sketch2.addConstraint(Sketcher.Constraint("Coincident", 28, 2, 25, 2))
sketch2.addConstraint(Sketcher.Constraint("Coincident", 29, 1, 30, 1))
sketch2.addConstraint(Sketcher.Constraint("Coincident", 30, 2, 31, 1))
sketch2.addConstraint(Sketcher.Constraint("Coincident", 31, 2, 32, 1))
sketch2.addConstraint(Sketcher.Constraint("Coincident", 32, 2, 29, 2))
sketch2.addConstraint(Sketcher.Constraint("Tangent", 33, 1, 34, 2))
sketch2.addConstraint(Sketcher.Constraint("Coincident", 34, 1, 35, 1))
sketch2.addConstraint(Sketcher.Constraint("Coincident", 35, 2, 33, 2))
sketch2.addConstraint(Sketcher.Constraint("Horizontal", 35))
sketch2.addConstraint(Sketcher.Constraint("Coincident", 1, 3, 0, 3))
sketch2.addConstraint(Sketcher.Constraint("Coincident", 3, 3, 0, 3))
sketch2.addConstraint(Sketcher.Constraint("Coincident", 5, 3, 0, 3))
sketch2.addConstraint(Sketcher.Constraint("Coincident", 7, 3, 0, 3))
sketch2.addConstraint(Sketcher.Constraint("Coincident", 9, 3, 0, 3))
sketch2.addConstraint(Sketcher.Constraint("Coincident", 11, 3, 0, 3))
sketch2.addConstraint(Sketcher.Constraint("Coincident", 13, 3, 0, 3))
sketch2.addConstraint(Sketcher.Constraint("Coincident", 15, 3, 0, 3))
sketch2.addConstraint(Sketcher.Constraint("Coincident", 17, 3, 0, 3))
sketch2.addConstraint(Sketcher.Constraint("Coincident", 19, 3, 0, 3))
sketch2.addConstraint(Sketcher.Constraint("Coincident", 21, 3, 0, 3))
sketch2.addConstraint(Sketcher.Constraint("Coincident", 23, 3, 0, 3))
sketch2.addConstraint(Sketcher.Constraint("Coincident", 25, 3, 0, 3))
sketch2.addConstraint(Sketcher.Constraint("Coincident", 27, 3, 0, 3))
sketch2.addConstraint(Sketcher.Constraint("Coincident", 29, 3, 0, 3))
sketch2.addConstraint(Sketcher.Constraint("Coincident", 31, 3, 0, 3))
sketch2.addConstraint(Sketcher.Constraint("Coincident", 33, 3, 0, 3))
sketch2.addConstraint(Sketcher.Constraint("Equal", 3, 5))
sketch2.addConstraint(Sketcher.Constraint("Equal", 1, 7))
sketch2.addConstraint(Sketcher.Constraint("Equal", 7, 9))
sketch2.addConstraint(Sketcher.Constraint("Equal", 5, 11))
sketch2.addConstraint(Sketcher.Constraint("Equal", 9, 13))
sketch2.addConstraint(Sketcher.Constraint("Equal", 11, 15))
sketch2.addConstraint(Sketcher.Constraint("Equal", 13, 17))
sketch2.addConstraint(Sketcher.Constraint("Equal", 15, 19))
sketch2.addConstraint(Sketcher.Constraint("Equal", 17, 21))
sketch2.addConstraint(Sketcher.Constraint("Equal", 19, 23))
sketch2.addConstraint(Sketcher.Constraint("Equal", 21, 25))
sketch2.addConstraint(Sketcher.Constraint("Equal", 23, 27))
sketch2.addConstraint(Sketcher.Constraint("Equal", 25, 29))
sketch2.addConstraint(Sketcher.Constraint("Equal", 27, 31))
sketch2.addConstraint(Sketcher.Constraint("Equal", 33, 34))
sketch2.addConstraint(Sketcher.Constraint("Symmetric", 4, 2, 9, 1, -1))
sketch2.addConstraint(Sketcher.Constraint("PointOnObject", 33, 1, -1))
sketch2.addConstraint(Sketcher.Constraint("Perpendicular", 8, 10))
sketch2.addConstraint(Sketcher.Constraint("Perpendicular", 6, 12))
sketch2.addConstraint(Sketcher.Constraint("Perpendicular", 2, 14))
sketch2.addConstraint(Sketcher.Constraint("Perpendicular", 4, 16))
sketch2.addConstraint(Sketcher.Constraint("Perpendicular", 10, 18))
sketch2.addConstraint(Sketcher.Constraint("Perpendicular", 12, 20))
sketch2.addConstraint(Sketcher.Constraint("Perpendicular", 14, 22))
sketch2.addConstraint(Sketcher.Constraint("Perpendicular", 16, 24))
sketch2.addConstraint(Sketcher.Constraint("Perpendicular", 18, 26))
sketch2.addConstraint(Sketcher.Constraint("Perpendicular", 20, 28))
sketch2.addConstraint(Sketcher.Constraint("Perpendicular", 22, 30))
sketch2.addConstraint(Sketcher.Constraint("Perpendicular", 24, 32))
sketch2.addConstraint(Sketcher.Constraint("Horizontal", 16, 2, 17, 1))
sketch2.addConstraint(Sketcher.Constraint("Horizontal", 15, 2, 18, 2))
sketch2.addConstraint(Sketcher.Constraint("Horizontal", 14, 2, 19, 2))
sketch2.addConstraint(Sketcher.Constraint("Horizontal", 13, 1, 20, 2))
sketch2.addConstraint(Sketcher.Constraint("Horizontal", 12, 2, 21, 1))
sketch2.addConstraint(Sketcher.Constraint("Horizontal", 10, 2, 23, 2))
sketch2.addConstraint(Sketcher.Constraint("Horizontal", 4, 2, 25, 1))
sketch2.addConstraint(Sketcher.Constraint("Horizontal", 2, 2, 27, 2))
sketch2.addConstraint(Sketcher.Constraint("Horizontal", 6, 2, 29, 1))
sketch2.addConstraint(Sketcher.Constraint("Horizontal", 8, 2, 31, 2))
sketch2.addConstraint(Sketcher.Constraint("Vertical", 2, 2, 11, 2))
sketch2.addConstraint(Sketcher.Constraint("Vertical", 6, 2, 13, 1))
sketch2.addConstraint(Sketcher.Constraint("Vertical", 8, 2, 15, 2))
sketch2.addConstraint(Sketcher.Constraint("Equal", 2, 4))
sketch2.addConstraint(Sketcher.Constraint("Equal", 4, 6))
sketch2.addConstraint(Sketcher.Constraint("Equal", 6, 8))
sketch2.addConstraint(Sketcher.Constraint("Diameter", 0, Q("1.75 in")))
sketch2.addConstraint(Sketcher.Constraint("Radius", 1, Q("0.75 in")))
sketch2.addConstraint(Sketcher.Constraint("Radius", 3, Q("0.25 in")))
sketch2.addConstraint(Sketcher.Constraint("DistanceY", -1, 1, 1, 1, Q("0.1 in")))
sketch2.addConstraint(Sketcher.Constraint("DistanceY", -1, 1, 2, 2, Q("0.04 in")))
sketch2.addConstraint(Sketcher.Constraint("Radius", 33, Q("1.50495 mm")))
sketch2.addConstraint(Sketcher.Constraint("DistanceX", -1, 1, 33, 1, Q("121.8253 mm")))
sketch2.addConstraint(Sketcher.Constraint("DistanceY", 3, 2, 7, 1, Q("11.4323 mm")))
sketch2.addConstraint(Sketcher.Constraint("DistanceX", 35, 1, 35, 2, Q("2.155704 mm")))
sketch2.setExpression("Constraints[98]", "Params.sketch2_diameter")
sketch2.setExpression("Constraints[99]", "Params.sketch2_radius")
sketch2.setExpression("Constraints[100]", "Params.sketch2_radius2")
pad2 = body2.newObject("PartDesign::Pad", "Pad001")
pad2.Profile = sketch2
pad2.setExpression("Length", "Params.pad2_length")
body3 = doc.addObject("PartDesign::Body", "Body002")

# Sketch on XY plane
sketch3 = body3.newObject("Sketcher::SketchObject", "Sketch002")
sketch3.AttachmentSupport = (doc.getObject("XY_Plane002"), [""])
sketch3.MapMode = "FlatFace"
sketch3.addGeometry(Part.LineSegment(V(-108, 0, 0), V(-95, 0, 0)), False)
sketch3.addGeometry(Part.ArcOfCircle(Part.Circle(V(-102, 0, 0), V(0, 0, 1), 6), math.radians(0), math.radians(180)), False)
sketch3.addConstraint(Sketcher.Constraint("Coincident", 0, 1, 1, 2))
sketch3.addConstraint(Sketcher.Constraint("Coincident", 1, 1, 0, 2))
sketch3.addConstraint(Sketcher.Constraint("Horizontal", 0))
sketch3.addConstraint(Sketcher.Constraint("PointOnObject", 1, 3, -1))
sketch3.addConstraint(Sketcher.Constraint("PointOnObject", 0, 1, -1))
sketch3.addConstraint(Sketcher.Constraint("Radius", 1, Q("0.25 in")))
sketch3.addConstraint(Sketcher.Constraint("DistanceX", 1, 3, -1, 1, Q("4 in")))
sketch3.setExpression("Constraints[5]", "Params.sketch3_radius")
revolution = body3.newObject("PartDesign::Revolution", "Revolution")
revolution.Profile = sketch3
revolution.ReferenceAxis = (sketch3, ["H_Axis"])
revolution.setExpression("Angle", "Params.revolution_angle")

doc.recompute()
